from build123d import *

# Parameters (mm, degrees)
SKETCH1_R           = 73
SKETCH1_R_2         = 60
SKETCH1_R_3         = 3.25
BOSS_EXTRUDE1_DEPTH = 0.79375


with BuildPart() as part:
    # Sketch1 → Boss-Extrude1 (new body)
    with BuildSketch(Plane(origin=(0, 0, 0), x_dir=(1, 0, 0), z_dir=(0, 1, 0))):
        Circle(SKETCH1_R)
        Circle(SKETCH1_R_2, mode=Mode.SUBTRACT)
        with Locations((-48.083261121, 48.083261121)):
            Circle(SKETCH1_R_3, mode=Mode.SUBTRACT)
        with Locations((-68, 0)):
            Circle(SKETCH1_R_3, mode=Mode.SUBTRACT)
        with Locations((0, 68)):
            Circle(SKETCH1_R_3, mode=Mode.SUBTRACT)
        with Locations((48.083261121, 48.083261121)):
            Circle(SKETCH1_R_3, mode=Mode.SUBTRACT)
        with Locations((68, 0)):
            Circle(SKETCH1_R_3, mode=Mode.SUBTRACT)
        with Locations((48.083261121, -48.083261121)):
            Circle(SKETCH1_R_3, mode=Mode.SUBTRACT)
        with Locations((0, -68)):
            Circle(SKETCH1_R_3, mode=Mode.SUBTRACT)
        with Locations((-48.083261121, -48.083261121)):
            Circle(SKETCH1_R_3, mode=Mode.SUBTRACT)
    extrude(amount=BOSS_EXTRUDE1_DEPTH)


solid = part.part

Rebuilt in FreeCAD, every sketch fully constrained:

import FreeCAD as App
import Part
import Sketcher
from FreeCAD import Vector
Q = App.Units.Quantity

doc = App.newDocument("Part")
params = doc.addObject("Spreadsheet::Sheet", "Params")
for row, (alias, value) in enumerate([
    ("sketch1_diameter", "146 mm"),
    ("sketch1_diameter2", "120 mm"),
    ("sketch1_diameter3", "6.5 mm"),
    ("pad1_length", "0.79375 mm"),
], start=1):
    params.set(f"A{row}", alias)
    params.set(f"B{row}", "=" + value)
    params.setAlias(f"B{row}", alias)

body = doc.addObject("PartDesign::Body", "Body")

sketch1 = doc.addObject("Sketcher::SketchObject", "Sketch")
body.addObject(sketch1)
sketch1.AttachmentSupport = (doc.XZ_Plane, [""])
sketch1.MapMode = "FlatFace"
sketch1.addGeometry(Part.Circle(Vector(0, 0, 0), Vector(0, 0, 1), 73), False)
sketch1.addGeometry(Part.Circle(Vector(-48.1, 48.1, 0), Vector(0, 0, 1), 3.2), False)
sketch1.addGeometry(Part.Circle(Vector(0, 68, 0), Vector(0, 0, 1), 3.2), False)
sketch1.addGeometry(Part.Circle(Vector(48.1, 48.1, 0), Vector(0, 0, 1), 3.2), False)
sketch1.addGeometry(Part.Circle(Vector(-68, 0, 0), Vector(0, 0, 1), 3.2), False)
sketch1.addGeometry(Part.Circle(Vector(-48.1, -48.1, 0), Vector(0, 0, 1), 3.2), False)
sketch1.addGeometry(Part.Circle(Vector(0, 0, 0), Vector(0, 0, 1), 60), False)
sketch1.addGeometry(Part.Circle(Vector(68, 0, 0), Vector(0, 0, 1), 3.2), False)
sketch1.addGeometry(Part.Circle(Vector(0, -68, 0), Vector(0, 0, 1), 3.2), False)
sketch1.addGeometry(Part.Circle(Vector(48.1, -48.1, 0), Vector(0, 0, 1), 3.2), False)
sketch1.addConstraint(Sketcher.Constraint("Coincident", 0, 3, -1, 1))
sketch1.addConstraint(Sketcher.Constraint("Coincident", 6, 3, -1, 1))
sketch1.addConstraint(Sketcher.Constraint("Equal", 1, 2))
sketch1.addConstraint(Sketcher.Constraint("Equal", 2, 3))
sketch1.addConstraint(Sketcher.Constraint("Equal", 3, 4))
sketch1.addConstraint(Sketcher.Constraint("Equal", 4, 5))
sketch1.addConstraint(Sketcher.Constraint("Equal", 5, 7))
sketch1.addConstraint(Sketcher.Constraint("Equal", 7, 8))
sketch1.addConstraint(Sketcher.Constraint("Equal", 8, 9))
sketch1.addConstraint(Sketcher.Constraint("Symmetric", 3, 3, 5, 3, -1, 1))
sketch1.addConstraint(Sketcher.Constraint("Symmetric", 4, 3, 7, 3, -1, 1))
sketch1.addConstraint(Sketcher.Constraint("Symmetric", 2, 3, 8, 3, -1, 1))
sketch1.addConstraint(Sketcher.Constraint("Symmetric", 1, 3, 9, 3, -1, 1))
sketch1.addConstraint(Sketcher.Constraint("Symmetric", 1, 3, 3, 3, -2))
sketch1.addConstraint(Sketcher.Constraint("PointOnObject", 2, 3, -2))
sketch1.addConstraint(Sketcher.Constraint("PointOnObject", 4, 3, -1))
sketch1.addConstraint(Sketcher.Constraint("Diameter", 0, Q("146 mm")))
sketch1.addConstraint(Sketcher.Constraint("Diameter", 6, Q("120 mm")))
sketch1.addConstraint(Sketcher.Constraint("Diameter", 1, Q("6.5 mm")))
sketch1.addConstraint(Sketcher.Constraint("DistanceY", -1, 1, 2, 3, Q("68 mm")))
sketch1.addConstraint(Sketcher.Constraint("DistanceX", 4, 3, -1, 1, Q("68 mm")))
sketch1.addConstraint(Sketcher.Constraint("DistanceX", 1, 3, -1, 1, Q("48.083261 mm")))
sketch1.addConstraint(Sketcher.Constraint("DistanceY", -1, 1, 1, 3, Q("48.083261 mm")))
sketch1.setExpression("Constraints[16]", "Params.sketch1_diameter")
sketch1.setExpression("Constraints[17]", "Params.sketch1_diameter2")
sketch1.setExpression("Constraints[18]", "Params.sketch1_diameter3")
pad1 = doc.addObject("PartDesign::Pad", "Pad")
body.addObject(pad1)
pad1.Profile = sketch1
pad1.setExpression("Length", "Params.pad1_length")
pad1.Reversed = True

doc.recompute()
